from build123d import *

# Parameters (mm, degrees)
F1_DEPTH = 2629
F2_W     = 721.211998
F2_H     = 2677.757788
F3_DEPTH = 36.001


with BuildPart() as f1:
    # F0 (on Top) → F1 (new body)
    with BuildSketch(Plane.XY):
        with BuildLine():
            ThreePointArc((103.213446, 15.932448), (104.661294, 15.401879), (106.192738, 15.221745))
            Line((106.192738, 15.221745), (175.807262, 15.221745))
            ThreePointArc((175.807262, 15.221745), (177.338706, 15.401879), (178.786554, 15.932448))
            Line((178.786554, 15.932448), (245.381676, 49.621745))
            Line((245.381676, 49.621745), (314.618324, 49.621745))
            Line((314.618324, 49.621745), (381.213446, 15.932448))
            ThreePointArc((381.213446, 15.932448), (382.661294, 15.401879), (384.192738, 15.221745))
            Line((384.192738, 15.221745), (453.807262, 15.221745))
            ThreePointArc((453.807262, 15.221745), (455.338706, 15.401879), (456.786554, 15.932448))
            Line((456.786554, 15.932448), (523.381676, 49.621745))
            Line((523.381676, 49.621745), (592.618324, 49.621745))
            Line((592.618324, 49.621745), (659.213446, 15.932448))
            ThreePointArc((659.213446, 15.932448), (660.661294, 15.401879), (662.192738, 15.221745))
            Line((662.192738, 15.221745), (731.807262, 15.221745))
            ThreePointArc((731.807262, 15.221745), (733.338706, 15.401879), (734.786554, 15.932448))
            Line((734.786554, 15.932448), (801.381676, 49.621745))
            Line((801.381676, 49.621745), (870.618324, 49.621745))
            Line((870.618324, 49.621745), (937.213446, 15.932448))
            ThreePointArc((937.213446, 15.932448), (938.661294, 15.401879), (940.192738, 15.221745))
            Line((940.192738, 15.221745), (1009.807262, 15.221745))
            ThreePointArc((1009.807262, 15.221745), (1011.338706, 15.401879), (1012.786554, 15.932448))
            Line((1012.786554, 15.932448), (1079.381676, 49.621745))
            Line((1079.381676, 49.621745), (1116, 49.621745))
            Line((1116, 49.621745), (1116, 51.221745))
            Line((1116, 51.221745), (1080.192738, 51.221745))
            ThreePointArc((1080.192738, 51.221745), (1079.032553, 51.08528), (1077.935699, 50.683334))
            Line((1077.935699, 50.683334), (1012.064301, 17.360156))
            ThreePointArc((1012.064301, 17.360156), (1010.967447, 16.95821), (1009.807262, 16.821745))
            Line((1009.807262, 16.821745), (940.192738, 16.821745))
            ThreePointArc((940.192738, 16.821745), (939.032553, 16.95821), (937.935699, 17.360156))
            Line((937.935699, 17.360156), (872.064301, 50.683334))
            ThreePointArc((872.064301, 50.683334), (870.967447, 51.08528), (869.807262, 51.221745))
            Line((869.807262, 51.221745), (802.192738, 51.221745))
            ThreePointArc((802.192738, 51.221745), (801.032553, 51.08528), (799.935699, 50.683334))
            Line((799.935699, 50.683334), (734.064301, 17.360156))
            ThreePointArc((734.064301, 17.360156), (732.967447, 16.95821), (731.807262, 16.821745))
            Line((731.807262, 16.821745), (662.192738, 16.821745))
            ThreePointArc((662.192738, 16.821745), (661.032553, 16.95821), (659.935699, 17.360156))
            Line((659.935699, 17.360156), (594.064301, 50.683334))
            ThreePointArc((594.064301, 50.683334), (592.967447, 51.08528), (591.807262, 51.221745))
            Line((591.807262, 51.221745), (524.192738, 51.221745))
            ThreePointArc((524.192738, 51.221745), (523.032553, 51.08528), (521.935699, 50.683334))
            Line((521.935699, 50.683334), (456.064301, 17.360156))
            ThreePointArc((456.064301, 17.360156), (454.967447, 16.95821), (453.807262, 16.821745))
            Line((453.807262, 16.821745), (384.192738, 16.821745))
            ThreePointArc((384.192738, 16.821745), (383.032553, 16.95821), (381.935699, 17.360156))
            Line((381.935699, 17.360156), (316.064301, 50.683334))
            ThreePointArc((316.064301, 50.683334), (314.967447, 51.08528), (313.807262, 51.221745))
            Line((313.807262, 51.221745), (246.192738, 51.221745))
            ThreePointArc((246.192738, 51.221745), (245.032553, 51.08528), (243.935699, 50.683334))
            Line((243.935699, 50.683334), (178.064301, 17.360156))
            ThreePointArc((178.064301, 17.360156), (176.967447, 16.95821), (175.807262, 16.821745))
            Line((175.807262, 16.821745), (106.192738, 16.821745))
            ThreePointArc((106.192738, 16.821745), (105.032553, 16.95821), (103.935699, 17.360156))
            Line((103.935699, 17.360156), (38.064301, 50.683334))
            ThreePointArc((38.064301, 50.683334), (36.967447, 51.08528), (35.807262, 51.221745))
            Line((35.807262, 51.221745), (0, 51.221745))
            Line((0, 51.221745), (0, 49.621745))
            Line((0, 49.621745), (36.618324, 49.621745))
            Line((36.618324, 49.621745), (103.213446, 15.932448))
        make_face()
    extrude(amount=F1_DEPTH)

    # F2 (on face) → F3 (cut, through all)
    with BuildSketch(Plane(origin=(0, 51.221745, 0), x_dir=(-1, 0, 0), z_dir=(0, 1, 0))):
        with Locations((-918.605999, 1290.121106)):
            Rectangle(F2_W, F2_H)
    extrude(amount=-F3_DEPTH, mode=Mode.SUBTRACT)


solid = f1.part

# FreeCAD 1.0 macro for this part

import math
import FreeCAD as App
import Part
import Sketcher
Q = App.Units.Quantity

doc = App.newDocument("Part")
body = doc.addObject("PartDesign::Body", "Body")

# Sketch on XY plane
sketch1 = body.newObject("Sketcher::SketchObject", "Sketch")
sketch1.AttachmentSupport = (doc.getObject("XY_Plane"), [""])
sketch1.MapMode = "FlatFace"
sketch1.addGeometry(Part.ArcOfCircle(Part.Circle(App.Vector(106.192738, 21.821744, 0), App.Vector(0, 0, 1), 6.599999), math.radians(-116.834049), math.radians(-89.999999)), False)
sketch1.addGeometry(Part.LineSegment(App.Vector(106.192738, 15.221745, 0), App.Vector(175.807262, 15.221745, 0)), False)
sketch1.addGeometry(Part.ArcOfCircle(Part.Circle(App.Vector(175.807262, 21.821744, 0), App.Vector(0, 0, 1), 6.599999), math.radians(-90.000001), math.radians(-63.165951)), False)
sketch1.addGeometry(Part.LineSegment(App.Vector(178.786554, 15.932448, 0), App.Vector(245.381676, 49.621745, 0)), False)
sketch1.addGeometry(Part.LineSegment(App.Vector(245.381676, 49.621745, 0), App.Vector(314.618324, 49.621745, 0)), False)
sketch1.addGeometry(Part.LineSegment(App.Vector(314.618324, 49.621745, 0), App.Vector(381.213446, 15.932448, 0)), False)
sketch1.addGeometry(Part.ArcOfCircle(Part.Circle(App.Vector(384.192738, 21.821744, 0), App.Vector(0, 0, 1), 6.599999), math.radians(-116.834049), math.radians(-89.999999)), False)
sketch1.addGeometry(Part.LineSegment(App.Vector(384.192738, 15.221745, 0), App.Vector(453.807262, 15.221745, 0)), False)
sketch1.addGeometry(Part.ArcOfCircle(Part.Circle(App.Vector(453.807262, 21.821744, 0), App.Vector(0, 0, 1), 6.599999), math.radians(-90.000001), math.radians(-63.165951)), False)
sketch1.addGeometry(Part.LineSegment(App.Vector(456.786554, 15.932448, 0), App.Vector(523.381676, 49.621745, 0)), False)
sketch1.addGeometry(Part.LineSegment(App.Vector(523.381676, 49.621745, 0), App.Vector(592.618324, 49.621745, 0)), False)
sketch1.addGeometry(Part.LineSegment(App.Vector(592.618324, 49.621745, 0), App.Vector(659.213446, 15.932448, 0)), False)
sketch1.addGeometry(Part.ArcOfCircle(Part.Circle(App.Vector(662.192738, 21.821744, 0), App.Vector(0, 0, 1), 6.599999), math.radians(-116.834049), math.radians(-89.999999)), False)
sketch1.addGeometry(Part.LineSegment(App.Vector(662.192738, 15.221745, 0), App.Vector(731.807262, 15.221745, 0)), False)
sketch1.addGeometry(Part.ArcOfCircle(Part.Circle(App.Vector(731.807262, 21.821744, 0), App.Vector(0, 0, 1), 6.599999), math.radians(-90.000001), math.radians(-63.165951)), False)
sketch1.addGeometry(Part.LineSegment(App.Vector(734.786554, 15.932448, 0), App.Vector(801.381676, 49.621745, 0)), False)
sketch1.addGeometry(Part.LineSegment(App.Vector(801.381676, 49.621745, 0), App.Vector(870.618324, 49.621745, 0)), False)
sketch1.addGeometry(Part.LineSegment(App.Vector(870.618324, 49.621745, 0), App.Vector(937.213446, 15.932448, 0)), False)
sketch1.addGeometry(Part.ArcOfCircle(Part.Circle(App.Vector(940.192738, 21.821744, 0), App.Vector(0, 0, 1), 6.599999), math.radians(-116.834049), math.radians(-89.999999)), False)
sketch1.addGeometry(Part.LineSegment(App.Vector(940.192738, 15.221745, 0), App.Vector(1009.807262, 15.221745, 0)), False)
sketch1.addGeometry(Part.ArcOfCircle(Part.Circle(App.Vector(1009.807262, 21.821744, 0), App.Vector(0, 0, 1), 6.599999), math.radians(-90.000001), math.radians(-63.165951)), False)
sketch1.addGeometry(Part.LineSegment(App.Vector(1012.786554, 15.932448, 0), App.Vector(1079.381676, 49.621745, 0)), False)
sketch1.addGeometry(Part.LineSegment(App.Vector(1079.381676, 49.621745, 0), App.Vector(1116, 49.621745, 0)), False)
sketch1.addGeometry(Part.LineSegment(App.Vector(1116, 49.621745, 0), App.Vector(1116, 51.221745, 0)), False)
sketch1.addGeometry(Part.LineSegment(App.Vector(1116, 51.221745, 0), App.Vector(1080.192738, 51.221745, 0)), False)
sketch1.addGeometry(Part.ArcOfCircle(Part.Circle(App.Vector(1080.192737, 46.221749, 0), App.Vector(0, 0, 1), 4.999996), math.radians(89.999985), math.radians(116.83405)), False)
sketch1.addGeometry(Part.LineSegment(App.Vector(1077.935699, 50.683334, 0), App.Vector(1012.064301, 17.360156, 0)), False)
sketch1.addGeometry(Part.ArcOfCircle(Part.Circle(App.Vector(1009.807263, 21.821741, 0), App.Vector(0, 0, 1), 4.999996), math.radians(-90.000015), math.radians(-63.16595)), False)
sketch1.addGeometry(Part.LineSegment(App.Vector(1009.807262, 16.821745, 0), App.Vector(940.192738, 16.821745, 0)), False)
sketch1.addGeometry(Part.ArcOfCircle(Part.Circle(App.Vector(940.192737, 21.821741, 0), App.Vector(0, 0, 1), 4.999996), math.radians(-116.83405), math.radians(-89.999985)), False)
sketch1.addGeometry(Part.LineSegment(App.Vector(937.935699, 17.360156, 0), App.Vector(872.064301, 50.683334, 0)), False)
sketch1.addGeometry(Part.ArcOfCircle(Part.Circle(App.Vector(869.807263, 46.221749, 0), App.Vector(0, 0, 1), 4.999996), math.radians(63.16595), math.radians(90.000015)), False)
sketch1.addGeometry(Part.LineSegment(App.Vector(869.807262, 51.221745, 0), App.Vector(802.192738, 51.221745, 0)), False)
sketch1.addGeometry(Part.ArcOfCircle(Part.Circle(App.Vector(802.192737, 46.221749, 0), App.Vector(0, 0, 1), 4.999996), math.radians(89.999985), math.radians(116.83405)), False)
sketch1.addGeometry(Part.LineSegment(App.Vector(799.935699, 50.683334, 0), App.Vector(734.064301, 17.360156, 0)), False)
sketch1.addGeometry(Part.ArcOfCircle(Part.Circle(App.Vector(731.807263, 21.821741, 0), App.Vector(0, 0, 1), 4.999996), math.radians(-90.000015), math.radians(-63.16595)), False)
sketch1.addGeometry(Part.LineSegment(App.Vector(731.807262, 16.821745, 0), App.Vector(662.192738, 16.821745, 0)), False)
sketch1.addGeometry(Part.ArcOfCircle(Part.Circle(App.Vector(662.192737, 21.821741, 0), App.Vector(0, 0, 1), 4.999996), math.radians(-116.83405), math.radians(-89.999985)), False)
sketch1.addGeometry(Part.LineSegment(App.Vector(659.935699, 17.360156, 0), App.Vector(594.064301, 50.683334, 0)), False)
sketch1.addGeometry(Part.ArcOfCircle(Part.Circle(App.Vector(591.807263, 46.221749, 0), App.Vector(0, 0, 1), 4.999996), math.radians(63.16595), math.radians(90.000015)), False)
sketch1.addGeometry(Part.LineSegment(App.Vector(591.807262, 51.221745, 0), App.Vector(524.192738, 51.221745, 0)), False)
sketch1.addGeometry(Part.ArcOfCircle(Part.Circle(App.Vector(524.192737, 46.221749, 0), App.Vector(0, 0, 1), 4.999996), math.radians(89.999985), math.radians(116.83405)), False)
sketch1.addGeometry(Part.LineSegment(App.Vector(521.935699, 50.683334, 0), App.Vector(456.064301, 17.360156, 0)), False)
sketch1.addGeometry(Part.ArcOfCircle(Part.Circle(App.Vector(453.807263, 21.821741, 0), App.Vector(0, 0, 1), 4.999996), math.radians(-90.000015), math.radians(-63.16595)), False)
sketch1.addGeometry(Part.LineSegment(App.Vector(453.807262, 16.821745, 0), App.Vector(384.192738, 16.821745, 0)), False)
sketch1.addGeometry(Part.ArcOfCircle(Part.Circle(App.Vector(384.192737, 21.821741, 0), App.Vector(0, 0, 1), 4.999996), math.radians(-116.83405), math.radians(-89.999985)), False)
sketch1.addGeometry(Part.LineSegment(App.Vector(381.935699, 17.360156, 0), App.Vector(316.064301, 50.683334, 0)), False)
sketch1.addGeometry(Part.ArcOfCircle(Part.Circle(App.Vector(313.807263, 46.221749, 0), App.Vector(0, 0, 1), 4.999996), math.radians(63.16595), math.radians(90.000015)), False)
sketch1.addGeometry(Part.LineSegment(App.Vector(313.807262, 51.221745, 0), App.Vector(246.192738, 51.221745, 0)), False)
sketch1.addGeometry(Part.ArcOfCircle(Part.Circle(App.Vector(246.192737, 46.221749, 0), App.Vector(0, 0, 1), 4.999996), math.radians(89.999985), math.radians(116.83405)), False)
sketch1.addGeometry(Part.LineSegment(App.Vector(243.935699, 50.683334, 0), App.Vector(178.064301, 17.360156, 0)), False)
sketch1.addGeometry(Part.ArcOfCircle(Part.Circle(App.Vector(175.807263, 21.821741, 0), App.Vector(0, 0, 1), 4.999996), math.radians(-90.000015), math.radians(-63.16595)), False)
sketch1.addGeometry(Part.LineSegment(App.Vector(175.807262, 16.821745, 0), App.Vector(106.192738, 16.821745, 0)), False)
sketch1.addGeometry(Part.ArcOfCircle(Part.Circle(App.Vector(106.192737, 21.821741, 0), App.Vector(0, 0, 1), 4.999996), math.radians(-116.83405), math.radians(-89.999985)), False)
sketch1.addGeometry(Part.LineSegment(App.Vector(103.935699, 17.360156, 0), App.Vector(38.064301, 50.683334, 0)), False)
sketch1.addGeometry(Part.ArcOfCircle(Part.Circle(App.Vector(35.807263, 46.221749, 0), App.Vector(0, 0, 1), 4.999996), math.radians(63.16595), math.radians(90.000015)), False)
sketch1.addGeometry(Part.LineSegment(App.Vector(35.807262, 51.221745, 0), App.Vector(0, 51.221745, 0)), False)
sketch1.addGeometry(Part.LineSegment(App.Vector(0, 51.221745, 0), App.Vector(0, 49.621745, 0)), False)
sketch1.addGeometry(Part.LineSegment(App.Vector(0, 49.621745, 0), App.Vector(36.618324, 49.621745, 0)), False)
sketch1.addGeometry(Part.LineSegment(App.Vector(36.618324, 49.621745, 0), App.Vector(103.213446, 15.932448, 0)), False)
sketch1.addConstraint(Sketcher.Constraint("Coincident", 0, 2, 1, 1))
sketch1.addConstraint(Sketcher.Constraint("Coincident", 1, 2, 2, 1))
sketch1.addConstraint(Sketcher.Constraint("Coincident", 2, 2, 3, 1))
sketch1.addConstraint(Sketcher.Constraint("Coincident", 3, 2, 4, 1))
sketch1.addConstraint(Sketcher.Constraint("Coincident", 4, 2, 5, 1))
sketch1.addConstraint(Sketcher.Constraint("Coincident", 5, 2, 6, 1))
sketch1.addConstraint(Sketcher.Constraint("Coincident", 6, 2, 7, 1))
sketch1.addConstraint(Sketcher.Constraint("Coincident", 7, 2, 8, 1))
sketch1.addConstraint(Sketcher.Constraint("Coincident", 8, 2, 9, 1))
sketch1.addConstraint(Sketcher.Constraint("Coincident", 9, 2, 10, 1))
sketch1.addConstraint(Sketcher.Constraint("Coincident", 10, 2, 11, 1))
sketch1.addConstraint(Sketcher.Constraint("Coincident", 11, 2, 12, 1))
sketch1.addConstraint(Sketcher.Constraint("Coincident", 12, 2, 13, 1))
sketch1.addConstraint(Sketcher.Constraint("Coincident", 13, 2, 14, 1))
sketch1.addConstraint(Sketcher.Constraint("Coincident", 14, 2, 15, 1))
sketch1.addConstraint(Sketcher.Constraint("Coincident", 15, 2, 16, 1))
sketch1.addConstraint(Sketcher.Constraint("Coincident", 16, 2, 17, 1))
sketch1.addConstraint(Sketcher.Constraint("Coincident", 17, 2, 18, 1))
sketch1.addConstraint(Sketcher.Constraint("Coincident", 18, 2, 19, 1))
sketch1.addConstraint(Sketcher.Constraint("Coincident", 19, 2, 20, 1))
sketch1.addConstraint(Sketcher.Constraint("Coincident", 20, 2, 21, 1))
sketch1.addConstraint(Sketcher.Constraint("Coincident", 21, 2, 22, 1))
sketch1.addConstraint(Sketcher.Constraint("Coincident", 22, 2, 23, 1))
sketch1.addConstraint(Sketcher.Constraint("Coincident", 23, 2, 24, 1))
sketch1.addConstraint(Sketcher.Constraint("Coincident", 24, 2, 25, 1))
sketch1.addConstraint(Sketcher.Constraint("Coincident", 25, 2, 26, 1))
sketch1.addConstraint(Sketcher.Constraint("Coincident", 26, 2, 27, 2))
sketch1.addConstraint(Sketcher.Constraint("Coincident", 27, 1, 28, 1))
sketch1.addConstraint(Sketcher.Constraint("Coincident", 28, 2, 29, 2))
sketch1.addConstraint(Sketcher.Constraint("Coincident", 29, 1, 30, 1))
sketch1.addConstraint(Sketcher.Constraint("Coincident", 30, 2, 31, 1))
sketch1.addConstraint(Sketcher.Constraint("Coincident", 31, 2, 32, 1))
sketch1.addConstraint(Sketcher.Constraint("Coincident", 32, 2, 33, 1))
sketch1.addConstraint(Sketcher.Constraint("Coincident", 33, 2, 34, 1))
sketch1.addConstraint(Sketcher.Constraint("Coincident", 34, 2, 35, 2))
sketch1.addConstraint(Sketcher.Constraint("Coincident", 35, 1, 36, 1))
sketch1.addConstraint(Sketcher.Constraint("Coincident", 36, 2, 37, 2))
sketch1.addConstraint(Sketcher.Constraint("Coincident", 37, 1, 38, 1))
sketch1.addConstraint(Sketcher.Constraint("Coincident", 38, 2, 39, 1))
sketch1.addConstraint(Sketcher.Constraint("Coincident", 39, 2, 40, 1))
sketch1.addConstraint(Sketcher.Constraint("Coincident", 40, 2, 41, 1))
sketch1.addConstraint(Sketcher.Constraint("Coincident", 41, 2, 42, 1))
sketch1.addConstraint(Sketcher.Constraint("Coincident", 42, 2, 43, 2))
sketch1.addConstraint(Sketcher.Constraint("Coincident", 43, 1, 44, 1))
sketch1.addConstraint(Sketcher.Constraint("Coincident", 44, 2, 45, 2))
sketch1.addConstraint(Sketcher.Constraint("Coincident", 45, 1, 46, 1))
sketch1.addConstraint(Sketcher.Constraint("Coincident", 46, 2, 47, 1))
sketch1.addConstraint(Sketcher.Constraint("Coincident", 47, 2, 48, 1))
sketch1.addConstraint(Sketcher.Constraint("Coincident", 48, 2, 49, 1))
sketch1.addConstraint(Sketcher.Constraint("Coincident", 49, 2, 50, 1))
sketch1.addConstraint(Sketcher.Constraint("Coincident", 50, 2, 51, 2))
sketch1.addConstraint(Sketcher.Constraint("Coincident", 51, 1, 52, 1))
sketch1.addConstraint(Sketcher.Constraint("Coincident", 52, 2, 53, 2))
sketch1.addConstraint(Sketcher.Constraint("Coincident", 53, 1, 54, 1))
sketch1.addConstraint(Sketcher.Constraint("Coincident", 54, 2, 55, 1))
sketch1.addConstraint(Sketcher.Constraint("Coincident", 55, 2, 56, 1))
sketch1.addConstraint(Sketcher.Constraint("Coincident", 56, 2, 57, 1))
sketch1.addConstraint(Sketcher.Constraint("Coincident", 57, 2, 58, 1))
sketch1.addConstraint(Sketcher.Constraint("Coincident", 58, 2, 59, 1))
sketch1.addConstraint(Sketcher.Constraint("Coincident", 59, 2, 0, 1))
sketch1.addConstraint(Sketcher.Constraint("Horizontal", 1))
sketch1.addConstraint(Sketcher.Constraint("Horizontal", 4))
sketch1.addConstraint(Sketcher.Constraint("Horizontal", 7))
sketch1.addConstraint(Sketcher.Constraint("Horizontal", 10))
sketch1.addConstraint(Sketcher.Constraint("Horizontal", 13))
sketch1.addConstraint(Sketcher.Constraint("Horizontal", 16))
sketch1.addConstraint(Sketcher.Constraint("Horizontal", 19))
sketch1.addConstraint(Sketcher.Constraint("Horizontal", 22))
sketch1.addConstraint(Sketcher.Constraint("Vertical", 23))
sketch1.addConstraint(Sketcher.Constraint("Horizontal", 24))
sketch1.addConstraint(Sketcher.Constraint("Horizontal", 28))
sketch1.addConstraint(Sketcher.Constraint("Horizontal", 32))
sketch1.addConstraint(Sketcher.Constraint("Horizontal", 36))
sketch1.addConstraint(Sketcher.Constraint("Horizontal", 40))
sketch1.addConstraint(Sketcher.Constraint("Horizontal", 44))
sketch1.addConstraint(Sketcher.Constraint("Horizontal", 48))
sketch1.addConstraint(Sketcher.Constraint("Horizontal", 52))
sketch1.addConstraint(Sketcher.Constraint("Horizontal", 56))
sketch1.addConstraint(Sketcher.Constraint("Vertical", 57))
sketch1.addConstraint(Sketcher.Constraint("Horizontal", 58))
sketch1.addConstraint(Sketcher.Constraint("Coincident", 27, 3, 20, 3))
sketch1.addConstraint(Sketcher.Constraint("Coincident", 29, 3, 18, 3))
sketch1.addConstraint(Sketcher.Constraint("Coincident", 35, 3, 14, 3))
sketch1.addConstraint(Sketcher.Constraint("Coincident", 37, 3, 12, 3))
sketch1.addConstraint(Sketcher.Constraint("Coincident", 43, 3, 8, 3))
sketch1.addConstraint(Sketcher.Constraint("Coincident", 45, 3, 6, 3))
sketch1.addConstraint(Sketcher.Constraint("Coincident", 51, 3, 2, 3))
sketch1.addConstraint(Sketcher.Constraint("Coincident", 53, 3, 0, 3))
sketch1.addConstraint(Sketcher.Constraint("PointOnObject", 56, 2, -2))
sketch1.addConstraint(Sketcher.Constraint("Radius", 0, Q("6.599999 mm")))
sketch1.addConstraint(Sketcher.Constraint("Radius", 2, Q("6.599999 mm")))
sketch1.addConstraint(Sketcher.Constraint("Radius", 6, Q("6.599999 mm")))
sketch1.addConstraint(Sketcher.Constraint("Radius", 8, Q("6.599999 mm")))
sketch1.addConstraint(Sketcher.Constraint("Radius", 12, Q("6.599999 mm")))
sketch1.addConstraint(Sketcher.Constraint("Radius", 14, Q("6.599999 mm")))
sketch1.addConstraint(Sketcher.Constraint("Radius", 18, Q("6.599999 mm")))
sketch1.addConstraint(Sketcher.Constraint("Radius", 20, Q("6.599999 mm")))
sketch1.addConstraint(Sketcher.Constraint("DistanceY", 23, 1, 23, 2, Q("1.6 mm")))
sketch1.addConstraint(Sketcher.Constraint("DistanceY", 57, 2, 57, 1, Q("1.6 mm")))
sketch1.addConstraint(Sketcher.Constraint("DistanceX", -1, 1, 22, 2, Q("1116 mm")))
sketch1.addConstraint(Sketcher.Constraint("Radius", 25, Q("4.999996 mm")))
sketch1.addConstraint(Sketcher.Constraint("Radius", 27, Q("4.999996 mm")))
sketch1.addConstraint(Sketcher.Constraint("Radius", 31, Q("4.999996 mm")))
sketch1.addConstraint(Sketcher.Constraint("Radius", 33, Q("4.999996 mm")))
sketch1.addConstraint(Sketcher.Constraint("Radius", 35, Q("4.999996 mm")))
sketch1.addConstraint(Sketcher.Constraint("Radius", 39, Q("4.999996 mm")))
sketch1.addConstraint(Sketcher.Constraint("Radius", 41, Q("4.999996 mm")))
sketch1.addConstraint(Sketcher.Constraint("Radius", 43, Q("4.999996 mm")))
sketch1.addConstraint(Sketcher.Constraint("Radius", 47, Q("4.999996 mm")))
sketch1.addConstraint(Sketcher.Constraint("Radius", 49, Q("4.999996 mm")))
sketch1.addConstraint(Sketcher.Constraint("Radius", 51, Q("4.999996 mm")))
sketch1.addConstraint(Sketcher.Constraint("Radius", 55, Q("4.999996 mm")))
sketch1.addConstraint(Sketcher.Constraint("DistanceX", 10, 1, 10, 2, Q("69.236648 mm")))
sketch1.addConstraint(Sketcher.Constraint("DistanceX", 16, 1, 16, 2, Q("69.236648 mm")))
sketch1.addConstraint(Sketcher.Constraint("DistanceX", -1, 1, 25, 2, Q("1077.935699 mm")))
sketch1.addConstraint(Sketcher.Constraint("DistanceX", -1, 1, 26, 2, Q("1012.064301 mm")))
sketch1.addConstraint(Sketcher.Constraint("DistanceX", -1, 1, 29, 1, Q("937.935699 mm")))
sketch1.addConstraint(Sketcher.Constraint("DistanceX", -1, 1, 30, 2, Q("872.064301 mm")))
sketch1.addConstraint(Sketcher.Constraint("DistanceX", -1, 1, 33, 2, Q("799.935699 mm")))
sketch1.addConstraint(Sketcher.Constraint("DistanceX", -1, 1, 34, 2, Q("734.064301 mm")))
sketch1.addConstraint(Sketcher.Constraint("DistanceX", -1, 1, 37, 1, Q("659.935699 mm")))
sketch1.addConstraint(Sketcher.Constraint("DistanceX", -1, 1, 38, 2, Q("594.064301 mm")))
sketch1.addConstraint(Sketcher.Constraint("DistanceX", -1, 1, 41, 2, Q("521.935699 mm")))
sketch1.addConstraint(Sketcher.Constraint("DistanceX", -1, 1, 42, 2, Q("456.064301 mm")))
sketch1.addConstraint(Sketcher.Constraint("DistanceX", -1, 1, 45, 1, Q("381.935699 mm")))
sketch1.addConstraint(Sketcher.Constraint("DistanceX", -1, 1, 46, 2, Q("316.064301 mm")))
sketch1.addConstraint(Sketcher.Constraint("DistanceX", -1, 1, 49, 2, Q("243.935699 mm")))
sketch1.addConstraint(Sketcher.Constraint("DistanceX", -1, 1, 50, 2, Q("178.064301 mm")))
sketch1.addConstraint(Sketcher.Constraint("DistanceX", -1, 1, 53, 1, Q("103.935699 mm")))
sketch1.addConstraint(Sketcher.Constraint("DistanceX", -1, 1, 54, 2, Q("38.064301 mm")))
sketch1.addConstraint(Sketcher.Constraint("Distance", 26, Q("73.820561 mm")))
sketch1.addConstraint(Sketcher.Constraint("Distance", 30, Q("73.820561 mm")))
sketch1.addConstraint(Sketcher.Constraint("Distance", 34, Q("73.820561 mm")))
sketch1.addConstraint(Sketcher.Constraint("Distance", 38, Q("73.820561 mm")))
sketch1.addConstraint(Sketcher.Constraint("Distance", 42, Q("73.820561 mm")))
sketch1.addConstraint(Sketcher.Constraint("Distance", 46, Q("73.820561 mm")))
sketch1.addConstraint(Sketcher.Constraint("Distance", 50, Q("73.820561 mm")))
sketch1.addConstraint(Sketcher.Constraint("Distance", 54, Q("73.820561 mm")))
sketch1.addConstraint(Sketcher.Constraint("DistanceX", 1, 1, 1, 2, Q("69.614524 mm")))
sketch1.addConstraint(Sketcher.Constraint("DistanceX", 4, 1, 4, 2, Q("69.236648 mm")))
sketch1.addConstraint(Sketcher.Constraint("DistanceX", 7, 1, 7, 2, Q("69.614524 mm")))
sketch1.addConstraint(Sketcher.Constraint("DistanceX", 13, 1, 13, 2, Q("69.614524 mm")))
sketch1.addConstraint(Sketcher.Constraint("DistanceX", 19, 1, 19, 2, Q("69.614524 mm")))
sketch1.addConstraint(Sketcher.Constraint("DistanceX", 22, 1, 22, 2, Q("36.618324 mm")))
sketch1.addConstraint(Sketcher.Constraint("DistanceX", 24, 2, 24, 1, Q("35.807262 mm")))
sketch1.addConstraint(Sketcher.Constraint("DistanceX", 28, 2, 28, 1, Q("69.614524 mm")))
sketch1.addConstraint(Sketcher.Constraint("DistanceX", 32, 2, 32, 1, Q("67.614524 mm")))
sketch1.addConstraint(Sketcher.Constraint("DistanceX", 36, 2, 36, 1, Q("69.614524 mm")))
sketch1.addConstraint(Sketcher.Constraint("DistanceX", 40, 2, 40, 1, Q("67.614524 mm")))
sketch1.addConstraint(Sketcher.Constraint("DistanceX", 44, 2, 44, 1, Q("69.614524 mm")))
sketch1.addConstraint(Sketcher.Constraint("DistanceX", 48, 2, 48, 1, Q("67.614524 mm")))
sketch1.addConstraint(Sketcher.Constraint("DistanceX", 52, 2, 52, 1, Q("69.614524 mm")))
sketch1.addConstraint(Sketcher.Constraint("DistanceX", 56, 2, 56, 1, Q("35.807262 mm")))
sketch1.addConstraint(Sketcher.Constraint("DistanceX", 58, 1, 58, 2, Q("36.618324 mm")))
sketch1.addConstraint(Sketcher.Constraint("DistanceY", -1, 1, 25, 3, Q("46.221749 mm")))
sketch1.addConstraint(Sketcher.Constraint("DistanceY", -1, 1, 27, 3, Q("21.821741 mm")))
sketch1.addConstraint(Sketcher.Constraint("DistanceY", -1, 1, 31, 3, Q("46.221749 mm")))
sketch1.addConstraint(Sketcher.Constraint("DistanceY", -1, 1, 35, 3, Q("21.821741 mm")))
sketch1.addConstraint(Sketcher.Constraint("DistanceY", -1, 1, 39, 3, Q("46.221749 mm")))
sketch1.addConstraint(Sketcher.Constraint("DistanceY", -1, 1, 43, 3, Q("21.821741 mm")))
sketch1.addConstraint(Sketcher.Constraint("DistanceY", -1, 1, 47, 3, Q("46.221749 mm")))
sketch1.addConstraint(Sketcher.Constraint("DistanceY", -1, 1, 51, 3, Q("21.821741 mm")))
sketch1.addConstraint(Sketcher.Constraint("DistanceY", -1, 1, 55, 3, Q("46.221749 mm")))
sketch1.addConstraint(Sketcher.Constraint("DistanceX", -1, 1, 0, 2, Q("106.192738 mm")))
sketch1.addConstraint(Sketcher.Constraint("DistanceY", -1, 1, 5, 2, Q("15.932448 mm")))
sketch1.addConstraint(Sketcher.Constraint("DistanceX", -1, 1, 6, 2, Q("384.192738 mm")))
sketch1.addConstraint(Sketcher.Constraint("DistanceY", -1, 1, 11, 2, Q("15.932448 mm")))
sketch1.addConstraint(Sketcher.Constraint("DistanceX", -1, 1, 12, 2, Q("662.192738 mm")))
sketch1.addConstraint(Sketcher.Constraint("DistanceY", -1, 1, 17, 2, Q("15.932448 mm")))
sketch1.addConstraint(Sketcher.Constraint("DistanceX", -1, 1, 18, 2, Q("940.192738 mm")))
sketch1.addConstraint(Sketcher.Constraint("DistanceX", -1, 1, 27, 1, Q("1009.807262 mm")))
sketch1.addConstraint(Sketcher.Constraint("DistanceX", -1, 1, 31, 2, Q("869.807262 mm")))
sketch1.addConstraint(Sketcher.Constraint("DistanceX", -1, 1, 35, 1, Q("731.807262 mm")))
sketch1.addConstraint(Sketcher.Constraint("DistanceX", -1, 1, 39, 2, Q("591.807262 mm")))
sketch1.addConstraint(Sketcher.Constraint("DistanceX", -1, 1, 43, 1, Q("453.807262 mm")))
sketch1.addConstraint(Sketcher.Constraint("DistanceX", -1, 1, 47, 2, Q("313.807262 mm")))
sketch1.addConstraint(Sketcher.Constraint("DistanceX", -1, 1, 51, 1, Q("175.807262 mm")))
sketch1.addConstraint(Sketcher.Constraint("DistanceY", -1, 1, 59, 2, Q("15.932448 mm")))
sketch1.addConstraint(Sketcher.Constraint("Distance", 3, Q("74.631622 mm")))
sketch1.addConstraint(Sketcher.Constraint("Distance", 5, Q("74.631622 mm")))
sketch1.addConstraint(Sketcher.Constraint("Distance", 9, Q("74.631622 mm")))
sketch1.addConstraint(Sketcher.Constraint("Distance", 11, Q("74.631622 mm")))
sketch1.addConstraint(Sketcher.Constraint("Distance", 15, Q("74.631622 mm")))
sketch1.addConstraint(Sketcher.Constraint("Distance", 17, Q("74.631622 mm")))
sketch1.addConstraint(Sketcher.Constraint("Distance", 21, Q("74.631622 mm")))
sketch1.addConstraint(Sketcher.Constraint("Distance", 59, Q("74.631622 mm")))
sketch1.addConstraint(Sketcher.Constraint("DistanceX", -1, 1, 2, 3, Q("175.807262 mm")))
sketch1.addConstraint(Sketcher.Constraint("DistanceX", -1, 1, 6, 3, Q("384.192738 mm")))
sketch1.addConstraint(Sketcher.Constraint("DistanceX", -1, 1, 8, 3, Q("453.807262 mm")))
sketch1.addConstraint(Sketcher.Constraint("DistanceX", -1, 1, 12, 3, Q("662.192738 mm")))
sketch1.addConstraint(Sketcher.Constraint("DistanceX", -1, 1, 14, 3, Q("731.807262 mm")))
sketch1.addConstraint(Sketcher.Constraint("DistanceX", -1, 1, 18, 3, Q("940.192738 mm")))
sketch1.addConstraint(Sketcher.Constraint("DistanceX", -1, 1, 20, 3, Q("1009.807262 mm")))
sketch1.addConstraint(Sketcher.Constraint("DistanceX", -1, 1, 2, 2, Q("178.786554 mm")))
sketch1.addConstraint(Sketcher.Constraint("DistanceX", -1, 1, 8, 2, Q("456.786554 mm")))
sketch1.addConstraint(Sketcher.Constraint("DistanceX", -1, 1, 14, 2, Q("734.786554 mm")))
pad1 = body.newObject("PartDesign::Pad", "Pad")
pad1.Profile = sketch1
pad1.Length = 2629

# Sketch on XZ plane
sketch2 = body.newObject("Sketcher::SketchObject", "Sketch001")
sketch2.AttachmentSupport = (doc.getObject("XZ_Plane"), [""])
sketch2.MapMode = "FlatFace"
sketch2.AttachmentOffset = App.Placement(App.Vector(0, 0, -51.221745), App.Rotation())
sketch2.addGeometry(Part.LineSegment(App.Vector(1279, 2629, 0), App.Vector(1279, -49, 0)), False)
sketch2.addGeometry(Part.LineSegment(App.Vector(1279, -49, 0), App.Vector(558, -49, 0)), False)
sketch2.addGeometry(Part.LineSegment(App.Vector(558, -49, 0), App.Vector(558, 2629, 0)), False)
sketch2.addGeometry(Part.LineSegment(App.Vector(558, 2629, 0), App.Vector(1279, 2629, 0)), False)
sketch2.addConstraint(Sketcher.Constraint("Coincident", 0, 2, 1, 1))
sketch2.addConstraint(Sketcher.Constraint("Coincident", 1, 2, 2, 1))
sketch2.addConstraint(Sketcher.Constraint("Coincident", 2, 2, 3, 1))
sketch2.addConstraint(Sketcher.Constraint("Coincident", 3, 2, 0, 1))
sketch2.addConstraint(Sketcher.Constraint("Vertical", 0))
sketch2.addConstraint(Sketcher.Constraint("Horizontal", 1))
sketch2.addConstraint(Sketcher.Constraint("Vertical", 2))
sketch2.addConstraint(Sketcher.Constraint("Horizontal", 3))
sketch2.addConstraint(Sketcher.Constraint("DistanceX", -1, 1, 1, 2, Q("558 mm")))
sketch2.addConstraint(Sketcher.Constraint("DistanceY", -1, 1, 2, 2, Q("2629 mm")))
sketch2.addConstraint(Sketcher.Constraint("DistanceX", 1, 2, 1, 1, Q("721.211998 mm")))
sketch2.addConstraint(Sketcher.Constraint("DistanceY", 0, 2, 0, 1, Q("2677.757788 mm")))
pocket1 = body.newObject("PartDesign::Pocket", "Pocket")
pocket1.Profile = sketch2
pocket1.Type = "ThroughAll"
pocket1.Reversed = True

doc.recompute()
